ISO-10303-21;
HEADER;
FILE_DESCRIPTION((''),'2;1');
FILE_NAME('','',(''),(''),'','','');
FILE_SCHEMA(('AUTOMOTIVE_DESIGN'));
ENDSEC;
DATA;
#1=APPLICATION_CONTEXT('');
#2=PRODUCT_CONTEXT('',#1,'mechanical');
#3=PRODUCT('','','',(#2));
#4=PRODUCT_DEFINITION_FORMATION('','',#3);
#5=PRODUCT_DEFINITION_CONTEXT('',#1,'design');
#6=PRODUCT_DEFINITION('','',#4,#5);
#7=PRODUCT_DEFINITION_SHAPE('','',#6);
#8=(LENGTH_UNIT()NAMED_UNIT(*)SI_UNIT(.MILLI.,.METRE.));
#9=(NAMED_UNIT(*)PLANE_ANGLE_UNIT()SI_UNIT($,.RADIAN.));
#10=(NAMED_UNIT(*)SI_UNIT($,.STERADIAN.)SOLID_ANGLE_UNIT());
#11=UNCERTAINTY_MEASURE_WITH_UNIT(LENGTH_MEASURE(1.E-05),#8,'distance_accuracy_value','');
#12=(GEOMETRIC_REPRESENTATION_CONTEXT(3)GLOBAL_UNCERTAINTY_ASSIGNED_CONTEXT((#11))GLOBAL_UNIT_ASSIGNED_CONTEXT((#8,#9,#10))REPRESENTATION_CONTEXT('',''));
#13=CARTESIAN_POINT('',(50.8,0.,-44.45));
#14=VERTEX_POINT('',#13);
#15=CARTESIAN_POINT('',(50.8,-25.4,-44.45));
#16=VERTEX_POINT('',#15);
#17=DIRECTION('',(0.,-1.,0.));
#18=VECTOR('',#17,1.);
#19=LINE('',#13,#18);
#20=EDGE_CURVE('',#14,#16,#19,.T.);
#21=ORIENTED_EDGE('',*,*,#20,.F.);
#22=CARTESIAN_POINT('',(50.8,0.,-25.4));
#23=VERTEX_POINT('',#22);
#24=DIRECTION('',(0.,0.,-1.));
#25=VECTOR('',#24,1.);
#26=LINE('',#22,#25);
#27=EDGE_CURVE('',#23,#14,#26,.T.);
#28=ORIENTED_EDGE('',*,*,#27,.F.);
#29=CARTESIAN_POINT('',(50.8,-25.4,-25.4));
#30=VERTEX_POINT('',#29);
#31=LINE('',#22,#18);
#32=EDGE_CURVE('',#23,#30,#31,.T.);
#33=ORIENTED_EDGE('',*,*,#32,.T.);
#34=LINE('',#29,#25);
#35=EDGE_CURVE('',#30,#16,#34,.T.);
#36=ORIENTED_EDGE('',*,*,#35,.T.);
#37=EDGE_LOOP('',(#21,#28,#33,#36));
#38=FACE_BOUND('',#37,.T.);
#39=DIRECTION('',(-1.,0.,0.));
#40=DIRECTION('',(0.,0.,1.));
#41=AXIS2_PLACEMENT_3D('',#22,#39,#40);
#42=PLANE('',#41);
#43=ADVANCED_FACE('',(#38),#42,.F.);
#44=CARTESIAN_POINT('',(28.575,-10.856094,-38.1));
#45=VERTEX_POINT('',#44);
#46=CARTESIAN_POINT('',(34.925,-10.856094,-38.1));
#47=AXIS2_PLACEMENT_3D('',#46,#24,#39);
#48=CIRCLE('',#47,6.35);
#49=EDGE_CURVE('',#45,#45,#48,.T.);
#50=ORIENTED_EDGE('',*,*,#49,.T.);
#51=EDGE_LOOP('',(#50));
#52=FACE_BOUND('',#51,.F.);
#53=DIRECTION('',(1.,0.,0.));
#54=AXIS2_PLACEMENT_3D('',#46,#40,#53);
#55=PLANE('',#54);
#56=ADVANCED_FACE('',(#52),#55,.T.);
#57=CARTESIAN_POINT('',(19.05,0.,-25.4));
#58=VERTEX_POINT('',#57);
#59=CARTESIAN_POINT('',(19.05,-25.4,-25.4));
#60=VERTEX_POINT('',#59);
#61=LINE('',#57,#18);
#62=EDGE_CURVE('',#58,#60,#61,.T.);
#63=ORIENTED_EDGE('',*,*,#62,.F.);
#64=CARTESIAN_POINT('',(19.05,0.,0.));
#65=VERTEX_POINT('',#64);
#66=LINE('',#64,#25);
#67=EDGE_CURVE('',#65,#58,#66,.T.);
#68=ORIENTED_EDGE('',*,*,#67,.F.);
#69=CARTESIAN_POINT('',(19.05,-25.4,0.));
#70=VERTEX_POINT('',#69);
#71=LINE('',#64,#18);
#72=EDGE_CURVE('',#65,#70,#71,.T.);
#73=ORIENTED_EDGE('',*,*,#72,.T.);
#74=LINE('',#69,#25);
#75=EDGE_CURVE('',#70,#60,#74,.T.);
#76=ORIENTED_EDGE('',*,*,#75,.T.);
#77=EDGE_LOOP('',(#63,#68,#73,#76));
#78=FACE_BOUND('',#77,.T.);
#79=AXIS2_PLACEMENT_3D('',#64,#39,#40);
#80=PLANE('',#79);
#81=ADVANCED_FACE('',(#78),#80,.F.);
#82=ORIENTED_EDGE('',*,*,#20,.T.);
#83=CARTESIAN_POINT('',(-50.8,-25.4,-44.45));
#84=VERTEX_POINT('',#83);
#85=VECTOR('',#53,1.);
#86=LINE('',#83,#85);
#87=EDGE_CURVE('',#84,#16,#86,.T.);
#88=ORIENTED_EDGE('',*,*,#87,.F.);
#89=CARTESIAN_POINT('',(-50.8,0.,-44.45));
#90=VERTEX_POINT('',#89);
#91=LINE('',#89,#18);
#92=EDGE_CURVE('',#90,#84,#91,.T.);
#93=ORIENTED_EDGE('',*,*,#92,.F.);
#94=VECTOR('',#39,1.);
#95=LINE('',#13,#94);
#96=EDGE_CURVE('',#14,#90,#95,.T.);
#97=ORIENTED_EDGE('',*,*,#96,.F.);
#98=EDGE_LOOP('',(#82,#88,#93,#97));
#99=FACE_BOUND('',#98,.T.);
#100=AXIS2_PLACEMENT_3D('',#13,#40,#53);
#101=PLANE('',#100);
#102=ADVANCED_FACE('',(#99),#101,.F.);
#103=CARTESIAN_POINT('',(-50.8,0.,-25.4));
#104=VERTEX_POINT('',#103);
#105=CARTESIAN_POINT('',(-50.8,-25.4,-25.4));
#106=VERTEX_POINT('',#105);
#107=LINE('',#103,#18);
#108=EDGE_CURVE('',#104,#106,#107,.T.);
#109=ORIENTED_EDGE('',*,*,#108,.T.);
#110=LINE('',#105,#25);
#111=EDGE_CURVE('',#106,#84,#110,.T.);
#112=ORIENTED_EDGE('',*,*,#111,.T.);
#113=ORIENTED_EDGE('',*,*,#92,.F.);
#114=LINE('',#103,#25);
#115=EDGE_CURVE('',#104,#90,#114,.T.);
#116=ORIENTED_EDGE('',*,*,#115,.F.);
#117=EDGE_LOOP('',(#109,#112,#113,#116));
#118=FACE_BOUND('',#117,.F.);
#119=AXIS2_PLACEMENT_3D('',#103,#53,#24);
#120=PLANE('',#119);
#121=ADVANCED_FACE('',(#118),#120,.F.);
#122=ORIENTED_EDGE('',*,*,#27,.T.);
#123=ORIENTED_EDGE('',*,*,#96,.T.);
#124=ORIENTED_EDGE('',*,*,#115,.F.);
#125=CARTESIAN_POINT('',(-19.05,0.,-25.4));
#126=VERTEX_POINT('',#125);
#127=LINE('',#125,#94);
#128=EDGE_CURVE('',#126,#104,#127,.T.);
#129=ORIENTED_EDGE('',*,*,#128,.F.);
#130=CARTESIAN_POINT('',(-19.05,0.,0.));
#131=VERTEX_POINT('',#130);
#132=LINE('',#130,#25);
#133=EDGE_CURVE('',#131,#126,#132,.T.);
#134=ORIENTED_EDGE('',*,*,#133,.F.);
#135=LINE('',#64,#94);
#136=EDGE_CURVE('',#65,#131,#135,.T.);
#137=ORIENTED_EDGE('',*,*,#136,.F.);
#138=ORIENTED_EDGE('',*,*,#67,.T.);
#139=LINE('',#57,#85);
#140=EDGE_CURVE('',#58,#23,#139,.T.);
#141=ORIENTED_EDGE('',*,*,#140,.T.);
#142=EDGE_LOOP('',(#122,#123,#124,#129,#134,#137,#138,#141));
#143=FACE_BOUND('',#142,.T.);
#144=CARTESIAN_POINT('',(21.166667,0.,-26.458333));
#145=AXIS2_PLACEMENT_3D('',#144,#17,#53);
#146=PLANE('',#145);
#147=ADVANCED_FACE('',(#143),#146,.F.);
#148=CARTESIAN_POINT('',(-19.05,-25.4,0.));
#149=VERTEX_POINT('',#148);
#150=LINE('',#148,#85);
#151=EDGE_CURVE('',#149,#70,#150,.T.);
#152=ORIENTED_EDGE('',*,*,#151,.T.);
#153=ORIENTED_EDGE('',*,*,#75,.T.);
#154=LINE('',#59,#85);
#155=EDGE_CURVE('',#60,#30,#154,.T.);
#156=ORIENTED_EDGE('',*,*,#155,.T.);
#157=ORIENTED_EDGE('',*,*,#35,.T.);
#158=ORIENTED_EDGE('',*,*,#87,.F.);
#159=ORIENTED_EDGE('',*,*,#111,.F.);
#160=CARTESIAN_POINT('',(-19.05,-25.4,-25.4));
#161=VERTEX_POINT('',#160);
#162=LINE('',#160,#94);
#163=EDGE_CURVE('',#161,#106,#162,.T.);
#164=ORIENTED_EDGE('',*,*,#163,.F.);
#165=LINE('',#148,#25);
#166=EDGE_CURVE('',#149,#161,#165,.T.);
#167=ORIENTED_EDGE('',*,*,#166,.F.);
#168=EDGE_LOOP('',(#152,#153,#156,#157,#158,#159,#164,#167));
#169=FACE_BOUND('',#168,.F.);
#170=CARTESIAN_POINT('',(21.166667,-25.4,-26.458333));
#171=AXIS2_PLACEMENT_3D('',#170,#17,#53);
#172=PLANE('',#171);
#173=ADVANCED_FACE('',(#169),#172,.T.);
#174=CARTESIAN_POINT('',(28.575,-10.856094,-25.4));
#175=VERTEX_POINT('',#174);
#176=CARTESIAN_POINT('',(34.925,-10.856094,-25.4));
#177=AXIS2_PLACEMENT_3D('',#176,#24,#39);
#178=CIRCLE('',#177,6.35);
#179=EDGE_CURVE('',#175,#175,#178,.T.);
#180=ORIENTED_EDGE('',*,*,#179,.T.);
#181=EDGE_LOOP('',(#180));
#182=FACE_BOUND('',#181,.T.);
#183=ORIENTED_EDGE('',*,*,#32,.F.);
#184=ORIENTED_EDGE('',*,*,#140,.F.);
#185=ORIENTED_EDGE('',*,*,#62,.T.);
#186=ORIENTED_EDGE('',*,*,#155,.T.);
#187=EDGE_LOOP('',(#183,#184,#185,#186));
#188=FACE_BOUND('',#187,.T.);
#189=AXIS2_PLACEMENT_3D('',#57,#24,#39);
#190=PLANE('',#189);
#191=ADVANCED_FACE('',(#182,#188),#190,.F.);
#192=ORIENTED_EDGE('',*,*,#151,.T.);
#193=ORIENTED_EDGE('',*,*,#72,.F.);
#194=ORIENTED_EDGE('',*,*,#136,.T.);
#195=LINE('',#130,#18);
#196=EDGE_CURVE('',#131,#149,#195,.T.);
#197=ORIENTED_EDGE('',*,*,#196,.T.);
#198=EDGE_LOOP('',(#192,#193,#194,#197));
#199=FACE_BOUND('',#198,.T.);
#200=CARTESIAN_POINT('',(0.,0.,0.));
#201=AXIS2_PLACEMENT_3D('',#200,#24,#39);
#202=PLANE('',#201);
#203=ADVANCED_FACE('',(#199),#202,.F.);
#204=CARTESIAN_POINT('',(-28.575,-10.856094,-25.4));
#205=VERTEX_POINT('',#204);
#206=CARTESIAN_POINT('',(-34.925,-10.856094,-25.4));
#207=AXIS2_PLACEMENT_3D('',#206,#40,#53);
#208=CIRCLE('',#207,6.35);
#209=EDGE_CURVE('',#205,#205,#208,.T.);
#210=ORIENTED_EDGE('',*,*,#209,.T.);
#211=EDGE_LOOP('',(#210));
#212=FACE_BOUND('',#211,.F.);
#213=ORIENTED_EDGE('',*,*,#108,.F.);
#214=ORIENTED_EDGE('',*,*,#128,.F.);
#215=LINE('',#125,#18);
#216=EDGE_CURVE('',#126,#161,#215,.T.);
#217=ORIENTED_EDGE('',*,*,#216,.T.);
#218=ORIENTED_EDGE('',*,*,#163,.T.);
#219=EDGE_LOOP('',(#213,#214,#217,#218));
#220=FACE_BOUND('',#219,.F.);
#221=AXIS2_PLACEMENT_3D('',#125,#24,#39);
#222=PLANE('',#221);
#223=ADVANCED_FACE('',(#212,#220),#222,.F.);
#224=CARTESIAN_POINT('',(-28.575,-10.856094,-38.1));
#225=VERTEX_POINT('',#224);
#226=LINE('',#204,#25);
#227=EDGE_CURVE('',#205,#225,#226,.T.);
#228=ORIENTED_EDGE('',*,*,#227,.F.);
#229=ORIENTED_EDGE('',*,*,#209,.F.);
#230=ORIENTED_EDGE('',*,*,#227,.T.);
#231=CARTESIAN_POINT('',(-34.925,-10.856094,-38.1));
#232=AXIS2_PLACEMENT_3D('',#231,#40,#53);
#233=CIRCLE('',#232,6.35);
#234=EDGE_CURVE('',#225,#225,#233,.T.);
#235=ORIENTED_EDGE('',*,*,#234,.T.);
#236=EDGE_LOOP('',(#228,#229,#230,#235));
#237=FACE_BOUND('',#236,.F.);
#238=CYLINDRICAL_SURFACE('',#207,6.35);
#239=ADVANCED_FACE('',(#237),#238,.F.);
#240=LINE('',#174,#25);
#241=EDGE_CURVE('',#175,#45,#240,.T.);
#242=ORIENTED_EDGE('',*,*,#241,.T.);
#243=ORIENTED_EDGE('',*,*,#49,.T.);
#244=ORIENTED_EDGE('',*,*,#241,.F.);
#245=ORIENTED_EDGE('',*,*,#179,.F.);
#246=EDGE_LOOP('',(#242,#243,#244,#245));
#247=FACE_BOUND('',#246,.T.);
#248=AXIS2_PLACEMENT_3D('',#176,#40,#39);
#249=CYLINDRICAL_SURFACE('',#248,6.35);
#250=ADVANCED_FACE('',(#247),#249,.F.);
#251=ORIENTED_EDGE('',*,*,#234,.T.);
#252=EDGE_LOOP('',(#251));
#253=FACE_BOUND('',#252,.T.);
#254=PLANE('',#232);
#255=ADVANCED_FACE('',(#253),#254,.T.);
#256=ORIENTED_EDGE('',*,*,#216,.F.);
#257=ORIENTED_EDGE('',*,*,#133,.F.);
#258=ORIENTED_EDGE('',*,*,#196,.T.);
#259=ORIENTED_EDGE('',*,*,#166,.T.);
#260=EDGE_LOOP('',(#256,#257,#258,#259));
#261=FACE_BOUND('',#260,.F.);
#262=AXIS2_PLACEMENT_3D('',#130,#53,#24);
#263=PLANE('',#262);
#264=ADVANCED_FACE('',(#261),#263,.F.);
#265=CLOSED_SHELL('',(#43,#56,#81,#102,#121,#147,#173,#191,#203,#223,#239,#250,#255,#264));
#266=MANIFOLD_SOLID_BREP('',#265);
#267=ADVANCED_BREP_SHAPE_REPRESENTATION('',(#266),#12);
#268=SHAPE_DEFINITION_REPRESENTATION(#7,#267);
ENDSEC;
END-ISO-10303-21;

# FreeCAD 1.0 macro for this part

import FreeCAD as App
import Part
import Sketcher
from FreeCAD import Vector
Q = App.Units.Quantity

doc = App.newDocument("Part")
body = doc.addObject("PartDesign::Body", "Body")

# Sketch on XZ plane
sketch1 = body.newObject("Sketcher::SketchObject", "Sketch")
sketch1.AttachmentSupport = (doc.getObject("XZ_Plane"), [""])
sketch1.MapMode = "FlatFace"
sketch1.addGeometry([
    Part.LineSegment(Vector(0, 0, 0), Vector(-19.05, 0, 0)),  # 0
    Part.LineSegment(Vector(-19.05, 0, 0), Vector(-19.05, -25.4, 0)),  # 1
    Part.LineSegment(Vector(-19.05, -25.4, 0), Vector(-50.8, -25.4, 0)),  # 2
    Part.LineSegment(Vector(-50.8, -25.4, 0), Vector(-50.8, -44.45, 0)),  # 3
    Part.LineSegment(Vector(-50.8, -44.45, 0), Vector(0, -44.45, 0)),  # 4
    Part.LineSegment(Vector(0, -44.45, 0), Vector(0, 0, 0)),  # 5
], False)
sketch1.addConstraint([
    Sketcher.Constraint("Coincident", 0, 2, 1, 1),
    Sketcher.Constraint("Coincident", 1, 2, 2, 1),
    Sketcher.Constraint("Coincident", 2, 2, 3, 1),
    Sketcher.Constraint("Coincident", 3, 2, 4, 1),
    Sketcher.Constraint("Coincident", 4, 2, 5, 1),
    Sketcher.Constraint("Coincident", 5, 2, 0, 1),
    Sketcher.Constraint("Horizontal", 0),
    Sketcher.Constraint("Vertical", 1),
    Sketcher.Constraint("Horizontal", 2),
    Sketcher.Constraint("Vertical", 3),
    Sketcher.Constraint("Horizontal", 4),
    Sketcher.Constraint("Vertical", 5),
    Sketcher.Constraint("Coincident", 5, 2, -1, 1),
    Sketcher.Constraint("Equal", 0, 3),
    Sketcher.Constraint("DistanceX", 4, 1, 4, 2, Q("2 in")),
    Sketcher.Constraint("DistanceY", 1, 2, 1, 1, Q("1 in")),
    Sketcher.Constraint("DistanceX", 0, 2, 0, 1, Q("0.75 in")),
])
pad1 = body.newObject("PartDesign::Pad", "Pad")
pad1.Profile = sketch1
pad1.Length = Q("1 in")

# Sketch on XY plane
sketch2 = body.newObject("Sketcher::SketchObject", "Sketch001")
sketch2.AttachmentSupport = (doc.getObject("XY_Plane"), [""])
sketch2.MapMode = "FlatFace"
sketch2.AttachmentOffset = App.Placement(Vector(0, 0, -1 * 25.4), App.Rotation())
sketch2.addGeometry(Part.Circle(Vector(-34.925, -10.856094, 0), Vector(0, 0, 1), 6.35), False)
sketch2.addConstraint([
    Sketcher.Constraint("Diameter", 0, Q("0.5 in")),
    Sketcher.Constraint("DistanceX", 0, 3, -1, 1, Q("1.375 in")),
    Sketcher.Constraint("DistanceY", 0, 3, -1, 1, 10.856094),
])
pocket1 = body.newObject("PartDesign::Pocket", "Pocket")
pocket1.Profile = sketch2
pocket1.Length = Q("0.5 in")
body2 = doc.addObject("PartDesign::Body", "Body001")
doc.recompute()

body2.BaseFeature = body
doc.recompute()

mirroring = doc.addObject("Part::Mirroring", "Mirroring")
mirroring.Source = body
mirroring.Base = Vector(0, 0, 0)
mirroring.Normal = Vector(1, 0, 0)
body3 = doc.addObject("PartDesign::Body", "Body002")
body3.BaseFeature = mirroring
boolean = body2.newObject("PartDesign::Boolean", "Boolean")
boolean.Type = "Fuse"
boolean.addObjects([body3])
doc.recompute()
mirroring.Visibility = False

doc.recompute()
